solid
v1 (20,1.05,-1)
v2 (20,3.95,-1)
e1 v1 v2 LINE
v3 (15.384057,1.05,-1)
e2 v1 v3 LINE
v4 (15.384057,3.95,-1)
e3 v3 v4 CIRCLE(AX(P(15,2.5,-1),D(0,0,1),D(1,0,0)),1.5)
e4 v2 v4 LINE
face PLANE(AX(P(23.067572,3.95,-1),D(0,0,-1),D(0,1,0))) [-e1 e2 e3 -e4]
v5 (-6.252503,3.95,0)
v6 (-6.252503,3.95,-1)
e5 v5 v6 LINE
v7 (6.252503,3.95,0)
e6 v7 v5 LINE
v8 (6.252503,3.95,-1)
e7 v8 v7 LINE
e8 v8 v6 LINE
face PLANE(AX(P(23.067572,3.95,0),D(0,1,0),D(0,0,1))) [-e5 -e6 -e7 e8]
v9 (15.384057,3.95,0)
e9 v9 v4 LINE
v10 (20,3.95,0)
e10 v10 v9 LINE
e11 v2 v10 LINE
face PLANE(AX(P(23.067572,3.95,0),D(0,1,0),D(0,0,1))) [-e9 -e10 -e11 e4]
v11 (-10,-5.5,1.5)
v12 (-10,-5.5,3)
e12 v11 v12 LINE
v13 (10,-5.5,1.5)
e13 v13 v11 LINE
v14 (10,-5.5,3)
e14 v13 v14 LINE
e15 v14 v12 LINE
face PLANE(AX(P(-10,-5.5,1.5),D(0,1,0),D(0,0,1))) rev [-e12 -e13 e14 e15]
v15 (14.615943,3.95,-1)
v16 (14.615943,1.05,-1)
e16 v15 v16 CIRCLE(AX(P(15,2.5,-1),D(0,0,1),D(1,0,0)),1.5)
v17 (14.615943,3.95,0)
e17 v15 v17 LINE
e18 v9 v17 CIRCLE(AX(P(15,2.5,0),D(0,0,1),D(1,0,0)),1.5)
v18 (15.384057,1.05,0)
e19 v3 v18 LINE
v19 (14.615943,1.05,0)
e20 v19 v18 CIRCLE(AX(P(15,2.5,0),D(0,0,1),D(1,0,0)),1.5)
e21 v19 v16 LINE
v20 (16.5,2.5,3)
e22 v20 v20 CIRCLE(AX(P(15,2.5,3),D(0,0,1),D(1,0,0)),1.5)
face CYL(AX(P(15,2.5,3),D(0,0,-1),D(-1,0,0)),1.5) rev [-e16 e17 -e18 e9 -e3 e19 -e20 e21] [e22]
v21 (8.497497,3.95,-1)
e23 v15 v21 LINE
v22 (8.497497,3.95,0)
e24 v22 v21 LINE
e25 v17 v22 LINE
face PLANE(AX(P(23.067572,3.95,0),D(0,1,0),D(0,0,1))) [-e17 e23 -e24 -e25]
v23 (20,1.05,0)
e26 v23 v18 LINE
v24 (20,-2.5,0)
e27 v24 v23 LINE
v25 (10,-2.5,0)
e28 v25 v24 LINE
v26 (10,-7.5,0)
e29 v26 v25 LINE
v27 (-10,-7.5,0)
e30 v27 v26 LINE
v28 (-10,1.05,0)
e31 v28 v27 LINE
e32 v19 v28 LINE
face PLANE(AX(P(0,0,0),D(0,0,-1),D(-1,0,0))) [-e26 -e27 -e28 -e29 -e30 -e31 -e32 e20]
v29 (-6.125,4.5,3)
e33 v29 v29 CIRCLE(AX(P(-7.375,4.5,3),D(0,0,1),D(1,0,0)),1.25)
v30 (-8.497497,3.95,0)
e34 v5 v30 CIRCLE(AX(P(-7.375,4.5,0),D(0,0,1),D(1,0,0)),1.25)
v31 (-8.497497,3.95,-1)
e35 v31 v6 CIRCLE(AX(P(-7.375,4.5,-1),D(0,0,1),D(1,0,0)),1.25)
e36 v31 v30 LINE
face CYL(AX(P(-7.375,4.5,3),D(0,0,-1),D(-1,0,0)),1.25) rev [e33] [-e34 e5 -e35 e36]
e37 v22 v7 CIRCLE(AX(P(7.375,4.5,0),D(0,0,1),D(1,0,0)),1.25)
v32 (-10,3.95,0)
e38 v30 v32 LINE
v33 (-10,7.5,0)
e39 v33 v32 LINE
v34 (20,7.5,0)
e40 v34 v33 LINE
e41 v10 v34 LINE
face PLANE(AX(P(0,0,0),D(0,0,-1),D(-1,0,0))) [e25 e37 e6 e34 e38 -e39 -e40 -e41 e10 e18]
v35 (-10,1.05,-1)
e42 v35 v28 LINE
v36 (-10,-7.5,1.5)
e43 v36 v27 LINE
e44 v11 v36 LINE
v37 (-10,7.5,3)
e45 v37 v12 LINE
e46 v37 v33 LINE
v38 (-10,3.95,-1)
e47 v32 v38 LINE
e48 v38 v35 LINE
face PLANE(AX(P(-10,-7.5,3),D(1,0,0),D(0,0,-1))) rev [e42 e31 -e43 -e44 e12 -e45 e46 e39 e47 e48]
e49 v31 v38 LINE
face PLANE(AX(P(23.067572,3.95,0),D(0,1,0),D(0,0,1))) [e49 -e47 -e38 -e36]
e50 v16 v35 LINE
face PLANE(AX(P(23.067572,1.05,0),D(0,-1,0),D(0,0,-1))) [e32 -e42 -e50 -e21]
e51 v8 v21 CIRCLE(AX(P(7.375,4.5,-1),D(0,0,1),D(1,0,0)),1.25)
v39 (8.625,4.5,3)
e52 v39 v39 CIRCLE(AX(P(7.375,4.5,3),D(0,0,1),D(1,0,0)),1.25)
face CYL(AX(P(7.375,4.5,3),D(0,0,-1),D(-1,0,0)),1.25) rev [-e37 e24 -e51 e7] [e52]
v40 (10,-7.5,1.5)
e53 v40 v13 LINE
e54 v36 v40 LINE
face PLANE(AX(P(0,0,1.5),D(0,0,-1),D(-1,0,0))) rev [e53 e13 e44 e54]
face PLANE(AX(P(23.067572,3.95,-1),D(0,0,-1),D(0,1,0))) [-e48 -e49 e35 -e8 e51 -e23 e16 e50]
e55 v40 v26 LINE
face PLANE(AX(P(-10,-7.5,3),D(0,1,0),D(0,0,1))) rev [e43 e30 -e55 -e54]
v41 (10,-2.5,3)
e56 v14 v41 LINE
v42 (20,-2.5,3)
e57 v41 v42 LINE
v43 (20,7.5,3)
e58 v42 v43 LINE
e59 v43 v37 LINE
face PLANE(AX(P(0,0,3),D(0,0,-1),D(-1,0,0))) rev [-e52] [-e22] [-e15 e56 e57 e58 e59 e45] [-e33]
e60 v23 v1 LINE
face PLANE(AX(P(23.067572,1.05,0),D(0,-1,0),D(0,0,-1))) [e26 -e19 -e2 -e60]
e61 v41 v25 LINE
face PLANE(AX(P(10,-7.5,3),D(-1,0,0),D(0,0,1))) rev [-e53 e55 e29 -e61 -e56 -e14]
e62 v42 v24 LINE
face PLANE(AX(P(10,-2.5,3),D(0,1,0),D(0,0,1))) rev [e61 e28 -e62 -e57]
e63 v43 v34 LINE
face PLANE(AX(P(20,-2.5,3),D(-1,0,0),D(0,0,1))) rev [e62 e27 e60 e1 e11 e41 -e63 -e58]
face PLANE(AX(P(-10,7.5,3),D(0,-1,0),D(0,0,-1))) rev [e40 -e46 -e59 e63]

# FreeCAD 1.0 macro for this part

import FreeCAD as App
import Part
import Sketcher

doc = App.newDocument("Part")
body = doc.addObject("PartDesign::Body", "Body")

sketch1 = body.newObject("Sketcher::SketchObject", "Sketch")
sketch1.AttachmentSupport = (doc.getObject("XY_Plane"), [""])
sketch1.MapMode = "FlatFace"
sketch1.addGeometry(Part.LineSegment(App.Vector(-10, -7.5, 0), App.Vector(10, -7.5, 0)), False)
sketch1.addGeometry(Part.LineSegment(App.Vector(10, -7.5, 0), App.Vector(10, -2.5, 0)), False)
sketch1.addGeometry(Part.LineSegment(App.Vector(10, -2.5, 0), App.Vector(20, -2.5, 0)), False)
sketch1.addGeometry(Part.LineSegment(App.Vector(20, -2.5, 0), App.Vector(20, 7.5, 0)), False)
sketch1.addGeometry(Part.LineSegment(App.Vector(20, 7.5, 0), App.Vector(-10, 7.5, 0)), False)
sketch1.addGeometry(Part.LineSegment(App.Vector(-10, 7.5, 0), App.Vector(-10, -7.5, 0)), False)
sketch1.addGeometry(Part.Circle(App.Vector(15, 2.5, 0), App.Vector(0, 0, 1), 1.5), False)
sketch1.addGeometry(Part.Circle(App.Vector(-7.4, 4.5, 0), App.Vector(0, 0, 1), 1.2), False)
sketch1.addGeometry(Part.Circle(App.Vector(7.4, 4.5, 0), App.Vector(0, 0, 1), 1.2), False)
sketch1.addConstraint(Sketcher.Constraint("Coincident", 0, 2, 1, 1))
sketch1.addConstraint(Sketcher.Constraint("Coincident", 1, 2, 2, 1))
sketch1.addConstraint(Sketcher.Constraint("Coincident", 2, 2, 3, 1))
sketch1.addConstraint(Sketcher.Constraint("Coincident", 3, 2, 4, 1))
sketch1.addConstraint(Sketcher.Constraint("Coincident", 4, 2, 5, 1))
sketch1.addConstraint(Sketcher.Constraint("Coincident", 5, 2, 0, 1))
sketch1.addConstraint(Sketcher.Constraint("Horizontal", 0))
sketch1.addConstraint(Sketcher.Constraint("Vertical", 1))
sketch1.addConstraint(Sketcher.Constraint("Horizontal", 2))
sketch1.addConstraint(Sketcher.Constraint("Vertical", 3))
sketch1.addConstraint(Sketcher.Constraint("Horizontal", 4))
sketch1.addConstraint(Sketcher.Constraint("Vertical", 5))
sketch1.addConstraint(Sketcher.Constraint("Equal", 7, 8))
sketch1.addConstraint(Sketcher.Constraint("Symmetric", 0, 2, 4, 2, -1, 1))
sketch1.addConstraint(Sketcher.Constraint("Symmetric", 7, 3, 8, 3, -2))
sketch1.addConstraint(Sketcher.Constraint("Equal", 2, 3))
sketch1.addConstraint(Sketcher.Constraint("Diameter", 6, 3.0))
sketch1.addConstraint(Sketcher.Constraint("Diameter", 7, 2.5))
sketch1.addConstraint(Sketcher.Constraint("DistanceX", 0, 1, 0, 2, 20.0))
sketch1.addConstraint(Sketcher.Constraint("DistanceX", 2, 1, 2, 2, 10.0))
sketch1.addConstraint(Sketcher.Constraint("DistanceY", 1, 1, 1, 2, 5.0))
sketch1.addConstraint(Sketcher.Constraint("DistanceX", -1, 1, 6, 3, 15.0))
sketch1.addConstraint(Sketcher.Constraint("DistanceY", 6, 3, 7, 3, 2.0))
sketch1.addConstraint(Sketcher.Constraint("DistanceY", 0, 2, 6, 3, 10.0))
sketch1.addConstraint(Sketcher.Constraint("DistanceX", 7, 3, 8, 3, 14.75))
pad1 = body.newObject("PartDesign::Pad", "Pad")
pad1.Profile = sketch1
pad1.Length = 3

sketch2 = body.newObject("Sketcher::SketchObject", "Sketch001")
sketch2.AttachmentSupport = (doc.getObject("XY_Plane"), [""])
sketch2.MapMode = "FlatFace"
sketch2.AttachmentOffset = App.Placement(App.Vector(0, 0, 3), App.Rotation())
sketch2.addGeometry(Part.LineSegment(App.Vector(-10, -5.5, 0), App.Vector(-10, -7.5, 0)), False)
sketch2.addGeometry(Part.LineSegment(App.Vector(-10, -7.5, 0), App.Vector(10, -7.5, 0)), False)
sketch2.addGeometry(Part.LineSegment(App.Vector(10, -7.5, 0), App.Vector(10, -5.5, 0)), False)
sketch2.addGeometry(Part.LineSegment(App.Vector(10, -5.5, 0), App.Vector(-10, -5.5, 0)), False)
sketch2.addConstraint(Sketcher.Constraint("Coincident", 0, 2, 1, 1))
sketch2.addConstraint(Sketcher.Constraint("Coincident", 1, 2, 2, 1))
sketch2.addConstraint(Sketcher.Constraint("Coincident", 2, 2, 3, 1))
sketch2.addConstraint(Sketcher.Constraint("Coincident", 3, 2, 0, 1))
sketch2.addConstraint(Sketcher.Constraint("Vertical", 0))
sketch2.addConstraint(Sketcher.Constraint("Horizontal", 1))
sketch2.addConstraint(Sketcher.Constraint("Vertical", 2))
sketch2.addConstraint(Sketcher.Constraint("Horizontal", 3))
sketch2.addConstraint(Sketcher.Constraint("DistanceX", 1, 1, 1, 2, 20.0))
sketch2.addConstraint(Sketcher.Constraint("DistanceY", 0, 2, 0, 1, 2.0))
sketch2.addConstraint(Sketcher.Constraint("DistanceX", 0, 2, -1, 1, 10.0))
sketch2.addConstraint(Sketcher.Constraint("DistanceY", 0, 2, -1, 1, 7.5))
pocket1 = body.newObject("PartDesign::Pocket", "Pocket")
pocket1.Profile = sketch2
pocket1.Length = 1.5

sketch3 = body.newObject("Sketcher::SketchObject", "Sketch002")
sketch3.AttachmentSupport = (doc.getObject("YZ_Plane"), [""])
sketch3.MapMode = "FlatFace"
sketch3.AttachmentOffset = App.Placement(App.Vector(0, 0, -10), App.Rotation())
sketch3.addGeometry(Part.LineSegment(App.Vector(4, -1, 0), App.Vector(1.1, -1, 0)), False)
sketch3.addGeometry(Part.LineSegment(App.Vector(1.1, -1, 0), App.Vector(1.1, 0, 0)), False)
sketch3.addGeometry(Part.LineSegment(App.Vector(1.1, 0, 0), App.Vector(4, 0, 0)), False)
sketch3.addGeometry(Part.LineSegment(App.Vector(4, 0, 0), App.Vector(4, -1, 0)), False)
sketch3.addConstraint(Sketcher.Constraint("Coincident", 0, 2, 1, 1))
sketch3.addConstraint(Sketcher.Constraint("Coincident", 1, 2, 2, 1))
sketch3.addConstraint(Sketcher.Constraint("Coincident", 2, 2, 3, 1))
sketch3.addConstraint(Sketcher.Constraint("Coincident", 3, 2, 0, 1))
sketch3.addConstraint(Sketcher.Constraint("Horizontal", 0))
sketch3.addConstraint(Sketcher.Constraint("Vertical", 1))
sketch3.addConstraint(Sketcher.Constraint("Horizontal", 2))
sketch3.addConstraint(Sketcher.Constraint("Vertical", 3))
sketch3.addConstraint(Sketcher.Constraint("PointOnObject", 1, 2, -1))
sketch3.addConstraint(Sketcher.Constraint("DistanceY", 1, 1, 1, 2, 1.0))
sketch3.addConstraint(Sketcher.Constraint("DistanceX", 0, 2, 0, 1, 2.9))
sketch3.addConstraint(Sketcher.Constraint("DistanceX", -1, 1, 0, 2, 1.05))
pad2 = body.newObject("PartDesign::Pad", "Pad001")
pad2.Profile = sketch3
pad2.Length = 30

sketch4 = body.newObject("Sketcher::SketchObject", "Sketch003")
sketch4.AttachmentSupport = (doc.getObject("XY_Plane"), [""])
sketch4.MapMode = "FlatFace"
sketch4.AttachmentOffset = App.Placement(App.Vector(0, 0, 3), App.Rotation())
sketch4.addGeometry(Part.Circle(App.Vector(-7.4, 4.5, 0), App.Vector(0, 0, 1), 1.2), False)
sketch4.addGeometry(Part.Circle(App.Vector(7.4, 4.5, 0), App.Vector(0, 0, 1), 1.2), False)
sketch4.addGeometry(Part.Circle(App.Vector(15, 2.5, 0), App.Vector(0, 0, 1), 1.5), False)
sketch4.addConstraint(Sketcher.Constraint("Equal", 0, 1))
sketch4.addConstraint(Sketcher.Constraint("Symmetric", 0, 3, 1, 3, -2))
sketch4.addConstraint(Sketcher.Constraint("Diameter", 2, 3.0))
sketch4.addConstraint(Sketcher.Constraint("Diameter", 0, 2.5))
sketch4.addConstraint(Sketcher.Constraint("DistanceX", -1, 1, 2, 3, 15.0))
sketch4.addConstraint(Sketcher.Constraint("DistanceY", 2, 3, 1, 3, 2.0))
sketch4.addConstraint(Sketcher.Constraint("DistanceY", -1, 1, 0, 3, 4.5))
sketch4.addConstraint(Sketcher.Constraint("DistanceX", 0, 3, 1, 3, 14.75))
pocket2 = body.newObject("PartDesign::Pocket", "Pocket001")
pocket2.Profile = sketch4
pocket2.Type = "ThroughAll"

doc.recompute()
